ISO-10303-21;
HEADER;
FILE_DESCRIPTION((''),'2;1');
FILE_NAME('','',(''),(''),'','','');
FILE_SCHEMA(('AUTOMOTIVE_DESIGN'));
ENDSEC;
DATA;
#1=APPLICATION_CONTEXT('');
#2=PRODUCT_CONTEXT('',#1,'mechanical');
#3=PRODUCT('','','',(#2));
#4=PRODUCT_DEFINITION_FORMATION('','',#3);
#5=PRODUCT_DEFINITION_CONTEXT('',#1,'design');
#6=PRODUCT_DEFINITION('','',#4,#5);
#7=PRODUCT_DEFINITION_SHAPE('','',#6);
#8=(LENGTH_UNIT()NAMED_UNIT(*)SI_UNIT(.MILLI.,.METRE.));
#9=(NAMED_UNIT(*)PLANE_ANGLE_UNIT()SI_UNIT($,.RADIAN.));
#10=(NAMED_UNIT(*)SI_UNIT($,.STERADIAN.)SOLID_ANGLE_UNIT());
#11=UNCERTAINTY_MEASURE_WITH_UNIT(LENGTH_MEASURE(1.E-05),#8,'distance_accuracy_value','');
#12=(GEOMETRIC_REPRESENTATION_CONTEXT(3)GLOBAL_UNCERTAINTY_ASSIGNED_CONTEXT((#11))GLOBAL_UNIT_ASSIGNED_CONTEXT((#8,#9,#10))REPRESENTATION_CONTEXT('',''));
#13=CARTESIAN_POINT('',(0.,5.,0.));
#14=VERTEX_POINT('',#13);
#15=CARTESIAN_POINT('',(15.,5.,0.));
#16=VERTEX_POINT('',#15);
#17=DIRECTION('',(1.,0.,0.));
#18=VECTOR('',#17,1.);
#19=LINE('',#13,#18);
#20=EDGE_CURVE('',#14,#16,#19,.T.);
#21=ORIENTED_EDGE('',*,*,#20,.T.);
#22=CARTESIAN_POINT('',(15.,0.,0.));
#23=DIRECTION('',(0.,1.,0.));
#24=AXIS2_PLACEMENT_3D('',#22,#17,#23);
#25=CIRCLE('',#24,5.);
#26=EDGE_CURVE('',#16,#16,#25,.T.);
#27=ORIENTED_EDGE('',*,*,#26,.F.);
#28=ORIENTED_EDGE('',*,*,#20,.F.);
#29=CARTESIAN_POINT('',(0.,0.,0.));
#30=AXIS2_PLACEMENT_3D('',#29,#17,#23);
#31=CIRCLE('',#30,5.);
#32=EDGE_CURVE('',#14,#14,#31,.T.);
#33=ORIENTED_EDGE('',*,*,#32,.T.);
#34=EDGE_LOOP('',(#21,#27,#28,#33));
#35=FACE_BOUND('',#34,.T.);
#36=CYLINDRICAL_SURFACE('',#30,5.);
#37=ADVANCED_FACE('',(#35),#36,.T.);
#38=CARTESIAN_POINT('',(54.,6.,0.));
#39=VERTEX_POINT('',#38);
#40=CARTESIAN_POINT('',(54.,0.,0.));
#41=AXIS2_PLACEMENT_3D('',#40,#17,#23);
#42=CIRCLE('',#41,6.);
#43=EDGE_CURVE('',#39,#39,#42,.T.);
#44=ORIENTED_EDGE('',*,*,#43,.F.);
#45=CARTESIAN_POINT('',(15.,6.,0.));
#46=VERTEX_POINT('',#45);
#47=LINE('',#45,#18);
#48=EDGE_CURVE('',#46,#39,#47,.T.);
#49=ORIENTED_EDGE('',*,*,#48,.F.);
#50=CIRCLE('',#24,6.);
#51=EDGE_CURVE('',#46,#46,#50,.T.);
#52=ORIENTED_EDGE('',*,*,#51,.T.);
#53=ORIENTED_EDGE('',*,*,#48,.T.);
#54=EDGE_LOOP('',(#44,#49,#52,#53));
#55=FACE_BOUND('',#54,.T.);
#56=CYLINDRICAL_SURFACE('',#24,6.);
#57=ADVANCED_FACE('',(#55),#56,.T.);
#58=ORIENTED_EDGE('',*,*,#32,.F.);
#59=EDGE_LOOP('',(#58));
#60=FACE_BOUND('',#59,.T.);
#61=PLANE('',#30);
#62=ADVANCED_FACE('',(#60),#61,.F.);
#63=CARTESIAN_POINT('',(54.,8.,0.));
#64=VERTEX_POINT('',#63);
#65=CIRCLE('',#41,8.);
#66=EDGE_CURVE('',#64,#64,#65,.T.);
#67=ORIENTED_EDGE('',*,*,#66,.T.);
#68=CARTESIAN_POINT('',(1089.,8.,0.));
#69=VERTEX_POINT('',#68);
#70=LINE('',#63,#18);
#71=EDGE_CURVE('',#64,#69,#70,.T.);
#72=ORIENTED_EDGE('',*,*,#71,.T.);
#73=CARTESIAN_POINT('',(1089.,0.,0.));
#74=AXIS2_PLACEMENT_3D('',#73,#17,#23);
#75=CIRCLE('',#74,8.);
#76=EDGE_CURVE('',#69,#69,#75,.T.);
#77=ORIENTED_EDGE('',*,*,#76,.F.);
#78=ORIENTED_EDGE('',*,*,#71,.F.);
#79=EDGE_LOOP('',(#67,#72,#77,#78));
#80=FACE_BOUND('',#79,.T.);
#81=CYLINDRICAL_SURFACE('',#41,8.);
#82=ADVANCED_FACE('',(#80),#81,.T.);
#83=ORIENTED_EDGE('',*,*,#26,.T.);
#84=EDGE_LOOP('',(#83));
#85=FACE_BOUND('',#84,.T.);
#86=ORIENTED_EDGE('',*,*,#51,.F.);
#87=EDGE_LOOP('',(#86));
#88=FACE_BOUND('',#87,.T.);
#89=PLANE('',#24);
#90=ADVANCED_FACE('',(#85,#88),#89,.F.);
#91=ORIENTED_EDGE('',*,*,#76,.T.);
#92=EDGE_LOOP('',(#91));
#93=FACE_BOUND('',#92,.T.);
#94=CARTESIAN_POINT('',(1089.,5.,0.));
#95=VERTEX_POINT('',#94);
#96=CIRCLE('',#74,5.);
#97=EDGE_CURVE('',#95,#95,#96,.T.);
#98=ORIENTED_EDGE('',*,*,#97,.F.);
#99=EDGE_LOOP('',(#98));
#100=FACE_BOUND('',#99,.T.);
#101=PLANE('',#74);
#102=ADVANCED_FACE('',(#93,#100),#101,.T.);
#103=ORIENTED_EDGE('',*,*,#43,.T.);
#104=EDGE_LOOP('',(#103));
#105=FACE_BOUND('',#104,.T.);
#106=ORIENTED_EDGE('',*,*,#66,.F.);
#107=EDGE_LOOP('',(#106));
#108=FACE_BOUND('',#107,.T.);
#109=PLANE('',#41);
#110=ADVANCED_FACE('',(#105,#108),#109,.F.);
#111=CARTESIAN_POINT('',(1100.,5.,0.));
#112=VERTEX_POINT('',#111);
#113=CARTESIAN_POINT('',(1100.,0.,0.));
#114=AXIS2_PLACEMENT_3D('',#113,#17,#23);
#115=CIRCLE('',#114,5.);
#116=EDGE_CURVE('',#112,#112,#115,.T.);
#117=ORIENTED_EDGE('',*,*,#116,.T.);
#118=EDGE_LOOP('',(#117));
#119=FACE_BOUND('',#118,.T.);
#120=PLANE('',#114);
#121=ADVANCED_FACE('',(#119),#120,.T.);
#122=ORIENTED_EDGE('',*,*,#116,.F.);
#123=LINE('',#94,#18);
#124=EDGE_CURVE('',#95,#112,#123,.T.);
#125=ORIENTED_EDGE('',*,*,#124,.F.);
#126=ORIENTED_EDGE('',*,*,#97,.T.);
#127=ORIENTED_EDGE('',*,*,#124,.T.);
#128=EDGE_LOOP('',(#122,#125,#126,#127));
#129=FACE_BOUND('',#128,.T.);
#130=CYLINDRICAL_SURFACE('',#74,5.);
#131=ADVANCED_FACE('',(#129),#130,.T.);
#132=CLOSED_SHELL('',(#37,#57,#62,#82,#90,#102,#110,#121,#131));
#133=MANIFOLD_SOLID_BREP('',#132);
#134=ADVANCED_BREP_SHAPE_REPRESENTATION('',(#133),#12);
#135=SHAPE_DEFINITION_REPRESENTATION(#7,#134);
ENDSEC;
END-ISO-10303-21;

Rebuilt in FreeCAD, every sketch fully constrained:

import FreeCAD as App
import Part
import Sketcher


def add_polygon(sketch, points):
    """Adds a closed chain of lines whose ends are joined by coincident constraints."""
    first, n = sketch.GeometryCount, len(points)
    for a, b in zip(points, points[1:] + points[:1]):
        sketch.addGeometry(Part.LineSegment(App.Vector(*a, 0), App.Vector(*b, 0)), False)
    for i in range(n):
        sketch.addConstraint(Sketcher.Constraint("Coincident", first + i, 2, first + (i + 1) % n, 1))

doc = App.newDocument("Part")
body = doc.addObject("PartDesign::Body", "Body")

sketch1 = body.newObject("Sketcher::SketchObject", "Sketch")
sketch1.AttachmentSupport = (doc.getObject("XY_Plane"), [""])
sketch1.MapMode = "FlatFace"
add_polygon(sketch1, [(0, 5), (0, 0), (1100, 0), (1100, 5), (1089, 5), (1089, 8), (54, 8), (54, 6), (15, 6), (15, 5)])
sketch1.addConstraint(Sketcher.Constraint("Vertical", 0))
sketch1.addConstraint(Sketcher.Constraint("Horizontal", 1))
sketch1.addConstraint(Sketcher.Constraint("Vertical", 2))
sketch1.addConstraint(Sketcher.Constraint("Horizontal", 3))
sketch1.addConstraint(Sketcher.Constraint("Vertical", 4))
sketch1.addConstraint(Sketcher.Constraint("Horizontal", 5))
sketch1.addConstraint(Sketcher.Constraint("Vertical", 6))
sketch1.addConstraint(Sketcher.Constraint("Horizontal", 7))
sketch1.addConstraint(Sketcher.Constraint("Vertical", 8))
sketch1.addConstraint(Sketcher.Constraint("Horizontal", 9))
sketch1.addConstraint(Sketcher.Constraint("Coincident", 0, 2, -1, 1))
sketch1.addConstraint(Sketcher.Constraint("Horizontal", 3, 2, 8, 2))
sketch1.addConstraint(Sketcher.Constraint("DistanceX", 1, 1, 1, 2, 1100.0))
sketch1.addConstraint(Sketcher.Constraint("DistanceX", 3, 2, 3, 1, 11.0))
sketch1.addConstraint(Sketcher.Constraint("DistanceX", 7, 2, 7, 1, 39.0))
sketch1.addConstraint(Sketcher.Constraint("DistanceX", 9, 2, 9, 1, 15.0))
sketch1.addConstraint(Sketcher.Constraint("DistanceY", 0, 2, 0, 1, 5.0))
sketch1.addConstraint(Sketcher.Constraint("DistanceY", -1, 1, 4, 2, 8.0))
sketch1.addConstraint(Sketcher.Constraint("DistanceY", -1, 1, 6, 2, 6.0))
revolution = body.newObject("PartDesign::Revolution", "Revolution")
revolution.Profile = sketch1
revolution.ReferenceAxis = (sketch1, ["H_Axis"])
revolution.Angle = 360

doc.recompute()
